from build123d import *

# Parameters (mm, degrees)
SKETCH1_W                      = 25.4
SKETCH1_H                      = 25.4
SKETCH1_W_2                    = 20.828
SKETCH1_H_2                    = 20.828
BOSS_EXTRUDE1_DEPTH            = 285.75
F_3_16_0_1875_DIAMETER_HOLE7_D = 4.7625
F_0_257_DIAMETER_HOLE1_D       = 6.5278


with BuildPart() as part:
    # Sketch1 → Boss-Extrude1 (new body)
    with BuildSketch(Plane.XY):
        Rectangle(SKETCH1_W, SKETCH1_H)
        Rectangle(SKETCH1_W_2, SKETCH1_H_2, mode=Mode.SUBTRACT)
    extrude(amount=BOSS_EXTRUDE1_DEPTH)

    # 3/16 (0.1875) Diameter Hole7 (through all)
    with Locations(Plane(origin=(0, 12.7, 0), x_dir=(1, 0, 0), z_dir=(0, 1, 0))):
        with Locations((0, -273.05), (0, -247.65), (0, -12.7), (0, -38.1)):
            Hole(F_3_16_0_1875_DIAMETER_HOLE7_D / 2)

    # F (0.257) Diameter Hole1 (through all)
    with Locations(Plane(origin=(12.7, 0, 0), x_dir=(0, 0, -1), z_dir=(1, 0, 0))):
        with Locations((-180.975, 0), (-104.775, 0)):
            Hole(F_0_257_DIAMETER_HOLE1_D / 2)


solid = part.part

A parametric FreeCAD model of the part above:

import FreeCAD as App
import Part
import Sketcher
from FreeCAD import Vector
Q = App.Units.Quantity


def add_polygon(sketch, points):
    """Adds a closed chain of lines whose ends are joined by coincident constraints."""
    first, n = sketch.GeometryCount, len(points)
    for a, b in zip(points, points[1:] + points[:1]):
        sketch.addGeometry(Part.LineSegment(App.Vector(*a, 0), App.Vector(*b, 0)), False)
    for i in range(n):
        sketch.addConstraint(Sketcher.Constraint("Coincident", first + i, 2, first + (i + 1) % n, 1))

doc = App.newDocument("Part")
params = doc.addObject("Spreadsheet::Sheet", "Params")
for row, (alias, value) in enumerate([
    ("sketch1_width", "1 in"),
    ("sketch1_width2", "0.82 in"),
    ("pad1_length", "11.25 in"),
    ("sketch2_diameter", "0.1875 in"),
    ("hole_diameter", "0.1875 in"),
    ("sketch3_diameter", "0.257 in"),
    ("hole2_diameter", "0.257 in"),
], start=1):
    params.set(f"A{row}", alias)
    params.set(f"B{row}", "=" + value)
    params.setAlias(f"B{row}", alias)

body = doc.addObject("PartDesign::Body", "Body")

# Sketch on XY plane
sketch1 = body.newObject("Sketcher::SketchObject", "Sketch")
sketch1.AttachmentSupport = (doc.getObject("XY_Plane"), [""])
sketch1.MapMode = "FlatFace"
add_polygon(sketch1, [(-13, 13), (-13, -13), (13, -13), (13, 13)])  # lines 0-3
add_polygon(sketch1, [(10, -10), (-10, -10), (-10, 10), (10, 10)])  # lines 4-7
sketch1.addConstraint([
    Sketcher.Constraint("Vertical", 0),
    Sketcher.Constraint("Horizontal", 1),
    Sketcher.Constraint("Vertical", 2),
    Sketcher.Constraint("Horizontal", 3),
    Sketcher.Constraint("Horizontal", 4),
    Sketcher.Constraint("Vertical", 5),
    Sketcher.Constraint("Horizontal", 6),
    Sketcher.Constraint("Vertical", 7),
    Sketcher.Constraint("Symmetric", 0, 2, 2, 2, -1, 1),
    Sketcher.Constraint("Symmetric", 4, 2, 6, 2, -1, 1),
    Sketcher.Constraint("Equal", 3, 0),
    Sketcher.Constraint("Equal", 6, 5),
    Sketcher.Constraint("DistanceX", 1, 1, 1, 2, Q("1 in")),
    Sketcher.Constraint("DistanceX", 4, 2, 4, 1, Q("0.82 in")),
])
sketch1.setExpression("Constraints[20]", "Params.sketch1_width")
sketch1.setExpression("Constraints[21]", "Params.sketch1_width2")
pad1 = body.newObject("PartDesign::Pad", "Pad")
pad1.Profile = sketch1
pad1.setExpression("Length", "Params.pad1_length")

# Sketch on XZ plane
sketch2 = body.newObject("Sketcher::SketchObject", "Sketch001")
sketch2.AttachmentSupport = (doc.getObject("XZ_Plane"), [""])
sketch2.MapMode = "FlatFace"
sketch2.AttachmentOffset = App.Placement(Vector(0, 0, -0.5 * 25.4), App.Rotation())
sketch2.addGeometry([
    Part.Circle(Vector(0, 273.1, 0), Vector(0, 0, 1), 2.4),
    Part.Circle(Vector(0, 247.7, 0), Vector(0, 0, 1), 2.4),
    Part.Circle(Vector(0, 12.7, 0), Vector(0, 0, 1), 2.4),
    Part.Circle(Vector(0, 38.1, 0), Vector(0, 0, 1), 2.4),
], False)
sketch2.addConstraint([
    Sketcher.Constraint("Equal", 0, 1),
    Sketcher.Constraint("Equal", 1, 2),
    Sketcher.Constraint("Equal", 2, 3),
    Sketcher.Constraint("PointOnObject", 0, 3, -2),
    Sketcher.Constraint("PointOnObject", 1, 3, -2),
    Sketcher.Constraint("PointOnObject", 2, 3, -2),
    Sketcher.Constraint("PointOnObject", 3, 3, -2),
    Sketcher.Constraint("Diameter", 0, Q("0.1875 in")),
    Sketcher.Constraint("DistanceY", 1, 3, 0, 3, Q("1 in")),
    Sketcher.Constraint("DistanceY", 2, 3, 3, 3, Q("1 in")),
    Sketcher.Constraint("DistanceY", -1, 1, 2, 3, Q("0.5 in")),
    Sketcher.Constraint("DistanceY", -1, 1, 0, 3, Q("10.75 in")),
])
sketch2.setExpression("Constraints[7]", "Params.sketch2_diameter")
doc.recompute()
hole = body.newObject("PartDesign::Hole", "Hole")
hole.Profile = sketch2
hole.ThreadType = "None"
hole.setExpression("Diameter", "Params.hole_diameter")
hole.DepthType = "ThroughAll"
hole.Reversed = True

# Sketch on YZ plane
sketch3 = body.newObject("Sketcher::SketchObject", "Sketch002")
sketch3.AttachmentSupport = (doc.getObject("YZ_Plane"), [""])
sketch3.MapMode = "FlatFace"
sketch3.AttachmentOffset = App.Placement(Vector(0, 0, 0.5 * 25.4), App.Rotation())
sketch3.addGeometry([
    Part.Circle(Vector(0, 181, 0), Vector(0, 0, 1), 3.3),
    Part.Circle(Vector(0, 104.8, 0), Vector(0, 0, 1), 3.3),
], False)
sketch3.addConstraint([
    Sketcher.Constraint("Equal", 0, 1),
    Sketcher.Constraint("PointOnObject", 0, 3, -2),
    Sketcher.Constraint("PointOnObject", 1, 3, -2),
    Sketcher.Constraint("Diameter", 0, Q("0.257 in")),
    Sketcher.Constraint("DistanceY", 1, 3, 0, 3, Q("3 in")),
    Sketcher.Constraint("DistanceY", -1, 1, 0, 3, Q("7.125 in")),
])
sketch3.setExpression("Constraints[3]", "Params.sketch3_diameter")
doc.recompute()
hole2 = body.newObject("PartDesign::Hole", "Hole001")
hole2.Profile = sketch3
hole2.ThreadType = "None"
hole2.setExpression("Diameter", "Params.hole2_diameter")
hole2.DepthType = "ThroughAll"

doc.recompute()
